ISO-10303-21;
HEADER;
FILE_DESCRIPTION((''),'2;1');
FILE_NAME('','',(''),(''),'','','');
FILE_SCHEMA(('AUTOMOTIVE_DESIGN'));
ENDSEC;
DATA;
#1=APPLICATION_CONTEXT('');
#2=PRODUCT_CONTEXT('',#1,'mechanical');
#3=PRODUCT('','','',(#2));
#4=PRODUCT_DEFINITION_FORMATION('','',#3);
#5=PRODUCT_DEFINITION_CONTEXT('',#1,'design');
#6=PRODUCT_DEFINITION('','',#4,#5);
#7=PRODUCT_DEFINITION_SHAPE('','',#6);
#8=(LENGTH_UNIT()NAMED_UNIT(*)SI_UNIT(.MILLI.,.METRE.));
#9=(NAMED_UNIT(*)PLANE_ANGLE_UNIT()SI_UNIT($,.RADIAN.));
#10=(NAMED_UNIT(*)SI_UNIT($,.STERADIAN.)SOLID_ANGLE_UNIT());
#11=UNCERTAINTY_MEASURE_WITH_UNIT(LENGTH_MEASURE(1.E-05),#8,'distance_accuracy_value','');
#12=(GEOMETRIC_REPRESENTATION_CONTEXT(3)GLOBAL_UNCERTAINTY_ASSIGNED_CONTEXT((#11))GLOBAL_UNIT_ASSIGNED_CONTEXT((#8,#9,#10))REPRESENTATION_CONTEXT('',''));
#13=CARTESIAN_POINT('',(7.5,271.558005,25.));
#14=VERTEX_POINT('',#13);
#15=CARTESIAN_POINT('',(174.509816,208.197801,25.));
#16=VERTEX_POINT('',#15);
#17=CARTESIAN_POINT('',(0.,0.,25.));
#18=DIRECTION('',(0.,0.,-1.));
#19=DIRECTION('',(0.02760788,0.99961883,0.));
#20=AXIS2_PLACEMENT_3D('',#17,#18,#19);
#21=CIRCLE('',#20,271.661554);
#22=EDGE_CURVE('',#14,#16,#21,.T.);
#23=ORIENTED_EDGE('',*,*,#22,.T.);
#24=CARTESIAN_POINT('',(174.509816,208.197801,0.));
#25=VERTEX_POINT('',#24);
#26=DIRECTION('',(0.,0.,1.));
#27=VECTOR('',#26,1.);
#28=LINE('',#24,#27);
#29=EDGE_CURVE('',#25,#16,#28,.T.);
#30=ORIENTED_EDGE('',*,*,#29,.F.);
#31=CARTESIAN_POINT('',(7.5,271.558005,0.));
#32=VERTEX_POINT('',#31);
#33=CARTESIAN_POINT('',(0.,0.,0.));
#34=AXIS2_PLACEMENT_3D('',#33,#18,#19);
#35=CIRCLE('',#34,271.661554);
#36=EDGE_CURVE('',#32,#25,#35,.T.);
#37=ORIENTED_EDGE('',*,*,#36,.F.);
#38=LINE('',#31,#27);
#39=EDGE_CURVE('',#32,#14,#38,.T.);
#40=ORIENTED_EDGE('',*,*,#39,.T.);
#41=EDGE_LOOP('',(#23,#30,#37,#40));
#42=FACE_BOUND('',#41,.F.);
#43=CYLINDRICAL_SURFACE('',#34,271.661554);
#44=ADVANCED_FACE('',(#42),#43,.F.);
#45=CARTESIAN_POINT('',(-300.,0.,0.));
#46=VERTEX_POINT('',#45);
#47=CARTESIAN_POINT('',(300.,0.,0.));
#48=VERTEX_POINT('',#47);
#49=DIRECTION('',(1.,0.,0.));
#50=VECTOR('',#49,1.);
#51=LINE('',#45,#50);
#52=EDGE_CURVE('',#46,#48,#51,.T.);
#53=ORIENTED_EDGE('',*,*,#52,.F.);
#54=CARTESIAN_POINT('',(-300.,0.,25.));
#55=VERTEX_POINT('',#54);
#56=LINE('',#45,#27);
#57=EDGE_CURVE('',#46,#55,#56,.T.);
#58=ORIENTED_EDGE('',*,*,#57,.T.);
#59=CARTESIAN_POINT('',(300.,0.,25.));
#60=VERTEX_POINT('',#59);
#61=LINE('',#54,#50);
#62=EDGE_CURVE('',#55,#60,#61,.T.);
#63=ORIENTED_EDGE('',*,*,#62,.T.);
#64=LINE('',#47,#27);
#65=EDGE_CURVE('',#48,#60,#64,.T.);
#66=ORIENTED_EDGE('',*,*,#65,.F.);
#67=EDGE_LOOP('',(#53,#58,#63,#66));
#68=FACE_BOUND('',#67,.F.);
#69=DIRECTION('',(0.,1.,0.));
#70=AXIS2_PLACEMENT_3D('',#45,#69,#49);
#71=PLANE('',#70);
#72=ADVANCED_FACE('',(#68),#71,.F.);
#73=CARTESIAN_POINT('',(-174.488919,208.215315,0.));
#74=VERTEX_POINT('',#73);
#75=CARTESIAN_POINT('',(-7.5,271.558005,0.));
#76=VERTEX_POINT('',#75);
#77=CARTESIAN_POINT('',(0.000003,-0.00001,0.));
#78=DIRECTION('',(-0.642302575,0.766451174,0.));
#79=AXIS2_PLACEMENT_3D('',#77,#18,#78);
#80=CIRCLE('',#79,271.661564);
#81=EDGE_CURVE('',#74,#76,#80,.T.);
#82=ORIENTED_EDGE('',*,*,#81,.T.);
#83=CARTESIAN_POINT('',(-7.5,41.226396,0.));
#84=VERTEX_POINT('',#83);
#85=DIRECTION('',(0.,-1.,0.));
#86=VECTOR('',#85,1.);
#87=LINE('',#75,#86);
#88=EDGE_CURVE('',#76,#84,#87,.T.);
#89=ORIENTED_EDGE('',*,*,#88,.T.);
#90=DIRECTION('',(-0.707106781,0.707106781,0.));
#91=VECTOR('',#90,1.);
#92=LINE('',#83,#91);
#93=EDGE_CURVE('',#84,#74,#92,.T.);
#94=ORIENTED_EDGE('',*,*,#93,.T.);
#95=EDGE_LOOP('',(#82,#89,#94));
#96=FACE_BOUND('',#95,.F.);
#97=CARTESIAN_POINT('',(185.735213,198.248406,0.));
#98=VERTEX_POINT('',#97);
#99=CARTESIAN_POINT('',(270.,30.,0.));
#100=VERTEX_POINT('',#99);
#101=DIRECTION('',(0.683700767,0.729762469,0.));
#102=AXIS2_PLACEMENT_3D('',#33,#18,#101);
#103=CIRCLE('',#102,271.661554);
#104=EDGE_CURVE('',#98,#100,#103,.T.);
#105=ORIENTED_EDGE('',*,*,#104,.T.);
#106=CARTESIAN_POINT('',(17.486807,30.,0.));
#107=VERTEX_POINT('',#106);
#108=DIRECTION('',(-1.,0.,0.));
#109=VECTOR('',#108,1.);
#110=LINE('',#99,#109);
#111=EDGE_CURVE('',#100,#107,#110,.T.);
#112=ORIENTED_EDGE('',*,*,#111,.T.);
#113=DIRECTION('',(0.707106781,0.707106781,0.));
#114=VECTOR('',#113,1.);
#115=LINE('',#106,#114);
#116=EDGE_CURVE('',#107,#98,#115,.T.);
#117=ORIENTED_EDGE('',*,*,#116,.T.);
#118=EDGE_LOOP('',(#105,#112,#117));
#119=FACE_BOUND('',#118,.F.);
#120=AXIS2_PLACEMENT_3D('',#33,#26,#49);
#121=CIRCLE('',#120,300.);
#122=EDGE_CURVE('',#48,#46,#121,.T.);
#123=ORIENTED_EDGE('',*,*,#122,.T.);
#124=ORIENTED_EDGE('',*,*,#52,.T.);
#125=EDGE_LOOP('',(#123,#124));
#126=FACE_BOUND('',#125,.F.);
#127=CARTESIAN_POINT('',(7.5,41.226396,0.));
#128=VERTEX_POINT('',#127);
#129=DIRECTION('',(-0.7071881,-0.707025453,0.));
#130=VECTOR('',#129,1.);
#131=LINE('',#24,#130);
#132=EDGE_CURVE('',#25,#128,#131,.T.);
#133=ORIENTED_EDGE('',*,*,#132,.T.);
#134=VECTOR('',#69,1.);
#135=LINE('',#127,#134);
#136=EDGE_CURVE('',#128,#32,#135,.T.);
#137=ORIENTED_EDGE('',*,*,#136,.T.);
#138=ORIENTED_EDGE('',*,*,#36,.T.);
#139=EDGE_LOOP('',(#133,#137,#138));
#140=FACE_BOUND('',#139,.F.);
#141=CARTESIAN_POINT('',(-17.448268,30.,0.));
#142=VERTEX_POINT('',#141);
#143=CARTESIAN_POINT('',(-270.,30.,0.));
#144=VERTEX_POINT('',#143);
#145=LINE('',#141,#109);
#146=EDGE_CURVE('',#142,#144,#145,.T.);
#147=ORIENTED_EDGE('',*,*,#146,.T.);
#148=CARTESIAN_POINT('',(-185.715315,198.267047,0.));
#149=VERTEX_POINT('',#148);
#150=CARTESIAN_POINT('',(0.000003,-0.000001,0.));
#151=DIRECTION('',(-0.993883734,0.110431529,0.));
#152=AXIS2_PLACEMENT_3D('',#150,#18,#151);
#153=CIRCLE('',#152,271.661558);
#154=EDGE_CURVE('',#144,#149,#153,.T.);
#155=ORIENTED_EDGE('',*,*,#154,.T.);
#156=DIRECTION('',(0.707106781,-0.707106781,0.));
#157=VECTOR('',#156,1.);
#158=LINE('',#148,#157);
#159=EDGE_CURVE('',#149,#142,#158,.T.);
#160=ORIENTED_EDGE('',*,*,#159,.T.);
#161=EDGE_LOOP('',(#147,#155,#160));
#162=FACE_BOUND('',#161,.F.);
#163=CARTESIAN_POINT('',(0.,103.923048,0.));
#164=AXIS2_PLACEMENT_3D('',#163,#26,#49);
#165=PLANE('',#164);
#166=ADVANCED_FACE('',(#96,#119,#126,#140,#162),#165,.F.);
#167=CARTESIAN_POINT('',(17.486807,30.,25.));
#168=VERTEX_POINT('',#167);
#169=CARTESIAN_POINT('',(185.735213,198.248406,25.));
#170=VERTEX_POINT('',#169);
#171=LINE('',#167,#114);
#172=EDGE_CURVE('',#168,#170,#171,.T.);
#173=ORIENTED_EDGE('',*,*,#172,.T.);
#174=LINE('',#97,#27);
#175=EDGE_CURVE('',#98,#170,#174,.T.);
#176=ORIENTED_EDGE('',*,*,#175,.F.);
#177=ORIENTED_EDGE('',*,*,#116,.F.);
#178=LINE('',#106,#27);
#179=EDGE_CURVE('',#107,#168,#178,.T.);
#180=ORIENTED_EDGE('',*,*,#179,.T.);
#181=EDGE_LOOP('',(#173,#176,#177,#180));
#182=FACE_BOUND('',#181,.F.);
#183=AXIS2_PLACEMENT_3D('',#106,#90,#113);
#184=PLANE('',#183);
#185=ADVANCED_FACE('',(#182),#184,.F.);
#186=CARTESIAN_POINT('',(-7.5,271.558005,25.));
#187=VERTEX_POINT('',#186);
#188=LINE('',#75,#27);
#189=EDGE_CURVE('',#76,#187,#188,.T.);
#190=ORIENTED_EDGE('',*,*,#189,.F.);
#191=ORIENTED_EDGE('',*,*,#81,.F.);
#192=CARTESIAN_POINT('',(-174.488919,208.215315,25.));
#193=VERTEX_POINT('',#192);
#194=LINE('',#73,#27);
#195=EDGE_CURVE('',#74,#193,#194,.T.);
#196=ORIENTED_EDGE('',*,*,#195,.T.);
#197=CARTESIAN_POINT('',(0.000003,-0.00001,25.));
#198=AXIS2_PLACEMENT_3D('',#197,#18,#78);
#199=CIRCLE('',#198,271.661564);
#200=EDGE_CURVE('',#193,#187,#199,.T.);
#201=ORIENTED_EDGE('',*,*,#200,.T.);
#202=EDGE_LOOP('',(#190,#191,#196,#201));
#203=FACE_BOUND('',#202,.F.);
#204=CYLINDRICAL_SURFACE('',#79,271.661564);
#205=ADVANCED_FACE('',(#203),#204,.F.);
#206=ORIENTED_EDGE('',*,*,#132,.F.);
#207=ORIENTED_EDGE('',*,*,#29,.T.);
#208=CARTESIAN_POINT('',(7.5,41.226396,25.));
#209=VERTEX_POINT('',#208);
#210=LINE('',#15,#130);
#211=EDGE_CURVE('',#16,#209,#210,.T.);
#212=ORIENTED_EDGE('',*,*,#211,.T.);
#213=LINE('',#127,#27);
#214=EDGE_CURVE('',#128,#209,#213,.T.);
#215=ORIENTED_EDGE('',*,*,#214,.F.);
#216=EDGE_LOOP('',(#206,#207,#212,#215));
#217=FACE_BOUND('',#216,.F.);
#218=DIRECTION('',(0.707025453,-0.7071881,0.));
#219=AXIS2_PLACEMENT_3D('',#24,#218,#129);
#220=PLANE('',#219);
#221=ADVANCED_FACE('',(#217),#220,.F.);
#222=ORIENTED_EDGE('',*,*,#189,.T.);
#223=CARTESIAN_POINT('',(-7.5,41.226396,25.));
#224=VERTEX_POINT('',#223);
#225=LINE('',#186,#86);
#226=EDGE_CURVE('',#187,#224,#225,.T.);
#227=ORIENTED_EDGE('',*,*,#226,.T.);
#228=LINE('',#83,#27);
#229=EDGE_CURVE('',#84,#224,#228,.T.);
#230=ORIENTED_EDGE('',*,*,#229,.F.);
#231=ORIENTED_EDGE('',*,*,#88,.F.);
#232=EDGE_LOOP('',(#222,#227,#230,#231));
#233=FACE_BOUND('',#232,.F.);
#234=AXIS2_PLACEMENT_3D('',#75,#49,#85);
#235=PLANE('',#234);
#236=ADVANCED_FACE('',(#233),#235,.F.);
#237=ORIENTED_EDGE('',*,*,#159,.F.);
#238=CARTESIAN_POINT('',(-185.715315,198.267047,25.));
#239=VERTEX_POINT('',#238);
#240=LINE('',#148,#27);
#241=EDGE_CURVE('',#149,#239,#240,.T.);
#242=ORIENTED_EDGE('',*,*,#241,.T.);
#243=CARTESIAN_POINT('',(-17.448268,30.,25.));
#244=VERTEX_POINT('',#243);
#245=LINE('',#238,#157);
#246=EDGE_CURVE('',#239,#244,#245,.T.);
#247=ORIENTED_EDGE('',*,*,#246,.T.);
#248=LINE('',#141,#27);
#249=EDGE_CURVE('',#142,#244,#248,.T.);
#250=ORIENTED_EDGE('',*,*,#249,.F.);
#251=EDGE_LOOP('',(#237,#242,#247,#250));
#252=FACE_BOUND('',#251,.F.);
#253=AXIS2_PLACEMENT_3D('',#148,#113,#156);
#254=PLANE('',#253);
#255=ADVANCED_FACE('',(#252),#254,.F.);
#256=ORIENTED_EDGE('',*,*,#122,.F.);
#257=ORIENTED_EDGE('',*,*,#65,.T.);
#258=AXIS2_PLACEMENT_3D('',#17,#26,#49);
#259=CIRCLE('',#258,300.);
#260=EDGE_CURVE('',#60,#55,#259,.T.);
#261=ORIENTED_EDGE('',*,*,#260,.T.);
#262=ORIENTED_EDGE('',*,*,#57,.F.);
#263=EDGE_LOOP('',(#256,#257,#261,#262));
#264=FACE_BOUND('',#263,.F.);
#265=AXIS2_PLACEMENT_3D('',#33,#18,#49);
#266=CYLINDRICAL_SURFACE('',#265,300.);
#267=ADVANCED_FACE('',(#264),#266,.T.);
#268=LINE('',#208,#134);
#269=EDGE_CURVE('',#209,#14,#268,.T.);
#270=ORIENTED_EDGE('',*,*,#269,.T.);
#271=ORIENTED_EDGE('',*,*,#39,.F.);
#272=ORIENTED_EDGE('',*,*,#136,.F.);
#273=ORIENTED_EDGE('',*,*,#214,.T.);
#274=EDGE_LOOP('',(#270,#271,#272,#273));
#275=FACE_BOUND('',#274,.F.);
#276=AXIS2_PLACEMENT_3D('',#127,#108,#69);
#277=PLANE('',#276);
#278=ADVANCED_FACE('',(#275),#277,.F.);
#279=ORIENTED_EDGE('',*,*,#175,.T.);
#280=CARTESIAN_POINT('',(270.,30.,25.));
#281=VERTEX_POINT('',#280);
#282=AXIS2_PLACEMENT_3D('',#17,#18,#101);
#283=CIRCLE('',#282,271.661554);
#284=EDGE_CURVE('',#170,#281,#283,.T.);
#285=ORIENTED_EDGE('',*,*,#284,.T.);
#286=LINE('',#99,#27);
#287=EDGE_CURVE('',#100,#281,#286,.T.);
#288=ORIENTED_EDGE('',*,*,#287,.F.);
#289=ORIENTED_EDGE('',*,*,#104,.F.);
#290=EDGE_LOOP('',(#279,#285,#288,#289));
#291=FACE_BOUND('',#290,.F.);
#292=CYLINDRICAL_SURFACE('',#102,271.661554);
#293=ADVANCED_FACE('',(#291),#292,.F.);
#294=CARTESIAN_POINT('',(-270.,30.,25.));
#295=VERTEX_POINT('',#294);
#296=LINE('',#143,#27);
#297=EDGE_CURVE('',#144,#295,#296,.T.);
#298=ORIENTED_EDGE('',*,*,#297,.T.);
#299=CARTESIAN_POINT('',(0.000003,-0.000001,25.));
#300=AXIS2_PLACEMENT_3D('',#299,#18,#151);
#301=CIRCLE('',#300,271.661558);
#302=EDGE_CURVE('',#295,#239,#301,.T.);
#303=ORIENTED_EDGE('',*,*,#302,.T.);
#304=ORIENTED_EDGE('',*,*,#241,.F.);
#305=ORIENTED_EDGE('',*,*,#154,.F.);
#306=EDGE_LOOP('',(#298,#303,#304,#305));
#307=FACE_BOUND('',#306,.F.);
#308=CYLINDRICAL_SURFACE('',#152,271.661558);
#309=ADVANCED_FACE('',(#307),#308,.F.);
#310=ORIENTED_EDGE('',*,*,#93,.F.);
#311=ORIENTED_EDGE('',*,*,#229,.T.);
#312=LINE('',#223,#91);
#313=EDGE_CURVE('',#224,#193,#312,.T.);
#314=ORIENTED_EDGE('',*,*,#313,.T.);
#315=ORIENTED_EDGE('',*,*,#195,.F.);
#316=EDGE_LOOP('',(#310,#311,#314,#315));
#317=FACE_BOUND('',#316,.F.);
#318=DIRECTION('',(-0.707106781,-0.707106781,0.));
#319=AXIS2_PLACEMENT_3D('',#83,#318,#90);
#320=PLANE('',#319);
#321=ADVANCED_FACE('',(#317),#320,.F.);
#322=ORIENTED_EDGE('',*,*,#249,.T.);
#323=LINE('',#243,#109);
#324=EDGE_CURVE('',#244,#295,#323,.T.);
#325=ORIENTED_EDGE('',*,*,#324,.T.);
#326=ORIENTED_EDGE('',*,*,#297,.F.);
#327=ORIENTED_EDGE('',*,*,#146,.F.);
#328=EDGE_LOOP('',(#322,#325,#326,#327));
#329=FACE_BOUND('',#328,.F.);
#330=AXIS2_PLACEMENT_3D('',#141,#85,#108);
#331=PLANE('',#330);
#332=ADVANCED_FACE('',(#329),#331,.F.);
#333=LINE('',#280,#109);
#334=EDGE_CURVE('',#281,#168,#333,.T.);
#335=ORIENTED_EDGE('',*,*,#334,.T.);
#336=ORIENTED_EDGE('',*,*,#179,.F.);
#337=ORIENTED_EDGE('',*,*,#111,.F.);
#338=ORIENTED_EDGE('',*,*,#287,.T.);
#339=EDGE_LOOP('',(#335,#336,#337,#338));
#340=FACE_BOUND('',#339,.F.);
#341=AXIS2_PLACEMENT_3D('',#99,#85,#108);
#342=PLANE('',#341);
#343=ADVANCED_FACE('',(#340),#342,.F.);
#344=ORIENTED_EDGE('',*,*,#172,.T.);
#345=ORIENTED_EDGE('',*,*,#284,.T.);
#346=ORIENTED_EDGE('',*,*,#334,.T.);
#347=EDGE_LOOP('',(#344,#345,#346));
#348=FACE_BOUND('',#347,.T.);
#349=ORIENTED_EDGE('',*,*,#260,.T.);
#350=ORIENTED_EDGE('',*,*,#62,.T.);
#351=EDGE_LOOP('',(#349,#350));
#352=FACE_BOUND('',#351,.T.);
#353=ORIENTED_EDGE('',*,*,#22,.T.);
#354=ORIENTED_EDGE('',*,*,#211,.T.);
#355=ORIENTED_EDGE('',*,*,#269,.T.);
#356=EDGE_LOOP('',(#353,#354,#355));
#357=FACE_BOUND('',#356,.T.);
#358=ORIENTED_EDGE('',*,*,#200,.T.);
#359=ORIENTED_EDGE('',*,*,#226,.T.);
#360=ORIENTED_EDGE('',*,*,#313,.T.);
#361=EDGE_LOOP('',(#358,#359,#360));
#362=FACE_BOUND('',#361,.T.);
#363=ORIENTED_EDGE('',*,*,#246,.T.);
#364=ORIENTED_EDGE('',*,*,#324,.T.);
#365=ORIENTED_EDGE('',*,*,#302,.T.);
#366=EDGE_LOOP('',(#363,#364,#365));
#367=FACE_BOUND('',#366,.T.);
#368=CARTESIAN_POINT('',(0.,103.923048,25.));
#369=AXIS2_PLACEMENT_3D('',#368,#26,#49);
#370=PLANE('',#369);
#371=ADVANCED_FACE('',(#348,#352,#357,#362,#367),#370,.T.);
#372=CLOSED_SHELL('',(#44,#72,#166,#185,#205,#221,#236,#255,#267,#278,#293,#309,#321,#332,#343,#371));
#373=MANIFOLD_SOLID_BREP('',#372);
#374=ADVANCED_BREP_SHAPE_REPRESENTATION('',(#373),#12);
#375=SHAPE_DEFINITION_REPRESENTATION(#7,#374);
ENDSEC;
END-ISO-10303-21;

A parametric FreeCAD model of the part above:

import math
import FreeCAD as App
import Part
import Sketcher

V = App.Vector
Q = App.Units.Quantity

doc = App.newDocument("Part")
body = doc.addObject("PartDesign::Body", "Body")

# Sketch on XY plane
sketch1 = body.newObject("Sketcher::SketchObject", "Sketch")
sketch1.AttachmentSupport = (doc.getObject("XY_Plane"), [""])
sketch1.MapMode = "FlatFace"
sketch1.addGeometry([
    Part.LineSegment(V(-300, 0, 0), V(300, 0, 0)),  # 0
    Part.ArcOfCircle(Part.Circle(V(0, 0, 0), V(0, 0, 1), 300), math.radians(0), math.radians(180)),  # 1
    Part.ArcOfCircle(Part.Circle(V(0.000003, -0.000001, 0), V(0, 0, 1), 271.661558), math.radians(133.127765), math.radians(173.659808)),  # 2
    Part.LineSegment(V(-185.715315, 198.267047, 0), V(-17.448268, 30, 0)),  # 3
    Part.LineSegment(V(-17.448268, 30, 0), V(-270, 30, 0)),  # 4
    Part.LineSegment(V(17.486807, 30, 0), V(185.735213, 198.248406, 0)),  # 5
    Part.ArcOfCircle(Part.Circle(V(0, 0, 0), V(0, 0, 1), 271.661554), math.radians(6.340192), math.radians(46.866485)),  # 6
    Part.LineSegment(V(270, 30, 0), V(17.486807, 30, 0)),  # 7
    Part.LineSegment(V(-7.5, 41.226396, 0), V(-174.488919, 208.215315, 0)),  # 8
    Part.ArcOfCircle(Part.Circle(V(0.000003, -0.00001, 0), V(0, 0, 1), 271.661564), math.radians(91.582017), math.radians(129.963732)),  # 9
    Part.LineSegment(V(-7.5, 271.558005, 0), V(-7.5, 41.226396, 0)),  # 10
    Part.LineSegment(V(174.509816, 208.197801, 0), V(7.5, 41.226396, 0)),  # 11
    Part.LineSegment(V(7.5, 41.226396, 0), V(7.5, 271.558005, 0)),  # 12
    Part.ArcOfCircle(Part.Circle(V(0, 0, 0), V(0, 0, 1), 271.661554), math.radians(50.030517), math.radians(88.417984)),  # 13
], False)
sketch1.addConstraint([
    Sketcher.Constraint("Coincident", 0, 1, 1, 2),
    Sketcher.Constraint("Coincident", 1, 1, 0, 2),
    Sketcher.Constraint("Coincident", 2, 1, 3, 1),
    Sketcher.Constraint("Coincident", 3, 2, 4, 1),
    Sketcher.Constraint("Coincident", 4, 2, 2, 2),
    Sketcher.Constraint("Coincident", 5, 2, 6, 2),
    Sketcher.Constraint("Coincident", 6, 1, 7, 1),
    Sketcher.Constraint("Coincident", 7, 2, 5, 1),
    Sketcher.Constraint("Coincident", 8, 2, 9, 2),
    Sketcher.Constraint("Coincident", 9, 1, 10, 1),
    Sketcher.Constraint("Coincident", 10, 2, 8, 1),
    Sketcher.Constraint("Coincident", 11, 2, 12, 1),
    Sketcher.Constraint("Coincident", 12, 2, 13, 2),
    Sketcher.Constraint("Coincident", 13, 1, 11, 1),
    Sketcher.Constraint("Horizontal", 0),
    Sketcher.Constraint("Horizontal", 4),
    Sketcher.Constraint("Horizontal", 7),
    Sketcher.Constraint("Vertical", 10),
    Sketcher.Constraint("Vertical", 12),
    Sketcher.Constraint("Coincident", 1, 3, -1, 1),
    Sketcher.Constraint("Coincident", 2, 3, -1, 1),
    Sketcher.Constraint("Coincident", 6, 3, -1, 1),
    Sketcher.Constraint("Coincident", 13, 3, -1, 1),
    Sketcher.Constraint("Coincident", 9, 3, 2, 3),
    Sketcher.Constraint("Equal", 6, 13),
    Sketcher.Constraint("Symmetric", 4, 2, 6, 1, -2),
    Sketcher.Constraint("Symmetric", 10, 2, 11, 2, -2),
    Sketcher.Constraint("PointOnObject", 0, 1, -1),
    Sketcher.Constraint("Perpendicular", 3, 5),
    Sketcher.Constraint("Perpendicular", 5, 8),
    Sketcher.Constraint("Horizontal", 9, 1, 12, 2),
    Sketcher.Constraint("Radius", 1, Q("300 mm")),
    Sketcher.Constraint("Angle", 3, Q("-45 deg")),
    Sketcher.Constraint("DistanceY", -1, 1, 3, 2, Q("30 mm")),
    Sketcher.Constraint("DistanceX", 4, 2, -1, 1, Q("270 mm")),
    Sketcher.Constraint("DistanceX", 10, 2, 11, 2, Q("15 mm")),
    Sketcher.Constraint("DistanceY", 10, 2, 10, 1, Q("230.331609 mm")),
    Sketcher.Constraint("DistanceY", -1, 1, 13, 1, Q("208.197801 mm")),
    Sketcher.Constraint("DistanceY", 5, 2, 9, 1, Q("73.309599 mm")),
    Sketcher.Constraint("Distance", 3, Q("237.96554 mm")),
])
pad1 = body.newObject("PartDesign::Pad", "Pad")
pad1.Profile = sketch1
pad1.Length = 25

doc.recompute()
